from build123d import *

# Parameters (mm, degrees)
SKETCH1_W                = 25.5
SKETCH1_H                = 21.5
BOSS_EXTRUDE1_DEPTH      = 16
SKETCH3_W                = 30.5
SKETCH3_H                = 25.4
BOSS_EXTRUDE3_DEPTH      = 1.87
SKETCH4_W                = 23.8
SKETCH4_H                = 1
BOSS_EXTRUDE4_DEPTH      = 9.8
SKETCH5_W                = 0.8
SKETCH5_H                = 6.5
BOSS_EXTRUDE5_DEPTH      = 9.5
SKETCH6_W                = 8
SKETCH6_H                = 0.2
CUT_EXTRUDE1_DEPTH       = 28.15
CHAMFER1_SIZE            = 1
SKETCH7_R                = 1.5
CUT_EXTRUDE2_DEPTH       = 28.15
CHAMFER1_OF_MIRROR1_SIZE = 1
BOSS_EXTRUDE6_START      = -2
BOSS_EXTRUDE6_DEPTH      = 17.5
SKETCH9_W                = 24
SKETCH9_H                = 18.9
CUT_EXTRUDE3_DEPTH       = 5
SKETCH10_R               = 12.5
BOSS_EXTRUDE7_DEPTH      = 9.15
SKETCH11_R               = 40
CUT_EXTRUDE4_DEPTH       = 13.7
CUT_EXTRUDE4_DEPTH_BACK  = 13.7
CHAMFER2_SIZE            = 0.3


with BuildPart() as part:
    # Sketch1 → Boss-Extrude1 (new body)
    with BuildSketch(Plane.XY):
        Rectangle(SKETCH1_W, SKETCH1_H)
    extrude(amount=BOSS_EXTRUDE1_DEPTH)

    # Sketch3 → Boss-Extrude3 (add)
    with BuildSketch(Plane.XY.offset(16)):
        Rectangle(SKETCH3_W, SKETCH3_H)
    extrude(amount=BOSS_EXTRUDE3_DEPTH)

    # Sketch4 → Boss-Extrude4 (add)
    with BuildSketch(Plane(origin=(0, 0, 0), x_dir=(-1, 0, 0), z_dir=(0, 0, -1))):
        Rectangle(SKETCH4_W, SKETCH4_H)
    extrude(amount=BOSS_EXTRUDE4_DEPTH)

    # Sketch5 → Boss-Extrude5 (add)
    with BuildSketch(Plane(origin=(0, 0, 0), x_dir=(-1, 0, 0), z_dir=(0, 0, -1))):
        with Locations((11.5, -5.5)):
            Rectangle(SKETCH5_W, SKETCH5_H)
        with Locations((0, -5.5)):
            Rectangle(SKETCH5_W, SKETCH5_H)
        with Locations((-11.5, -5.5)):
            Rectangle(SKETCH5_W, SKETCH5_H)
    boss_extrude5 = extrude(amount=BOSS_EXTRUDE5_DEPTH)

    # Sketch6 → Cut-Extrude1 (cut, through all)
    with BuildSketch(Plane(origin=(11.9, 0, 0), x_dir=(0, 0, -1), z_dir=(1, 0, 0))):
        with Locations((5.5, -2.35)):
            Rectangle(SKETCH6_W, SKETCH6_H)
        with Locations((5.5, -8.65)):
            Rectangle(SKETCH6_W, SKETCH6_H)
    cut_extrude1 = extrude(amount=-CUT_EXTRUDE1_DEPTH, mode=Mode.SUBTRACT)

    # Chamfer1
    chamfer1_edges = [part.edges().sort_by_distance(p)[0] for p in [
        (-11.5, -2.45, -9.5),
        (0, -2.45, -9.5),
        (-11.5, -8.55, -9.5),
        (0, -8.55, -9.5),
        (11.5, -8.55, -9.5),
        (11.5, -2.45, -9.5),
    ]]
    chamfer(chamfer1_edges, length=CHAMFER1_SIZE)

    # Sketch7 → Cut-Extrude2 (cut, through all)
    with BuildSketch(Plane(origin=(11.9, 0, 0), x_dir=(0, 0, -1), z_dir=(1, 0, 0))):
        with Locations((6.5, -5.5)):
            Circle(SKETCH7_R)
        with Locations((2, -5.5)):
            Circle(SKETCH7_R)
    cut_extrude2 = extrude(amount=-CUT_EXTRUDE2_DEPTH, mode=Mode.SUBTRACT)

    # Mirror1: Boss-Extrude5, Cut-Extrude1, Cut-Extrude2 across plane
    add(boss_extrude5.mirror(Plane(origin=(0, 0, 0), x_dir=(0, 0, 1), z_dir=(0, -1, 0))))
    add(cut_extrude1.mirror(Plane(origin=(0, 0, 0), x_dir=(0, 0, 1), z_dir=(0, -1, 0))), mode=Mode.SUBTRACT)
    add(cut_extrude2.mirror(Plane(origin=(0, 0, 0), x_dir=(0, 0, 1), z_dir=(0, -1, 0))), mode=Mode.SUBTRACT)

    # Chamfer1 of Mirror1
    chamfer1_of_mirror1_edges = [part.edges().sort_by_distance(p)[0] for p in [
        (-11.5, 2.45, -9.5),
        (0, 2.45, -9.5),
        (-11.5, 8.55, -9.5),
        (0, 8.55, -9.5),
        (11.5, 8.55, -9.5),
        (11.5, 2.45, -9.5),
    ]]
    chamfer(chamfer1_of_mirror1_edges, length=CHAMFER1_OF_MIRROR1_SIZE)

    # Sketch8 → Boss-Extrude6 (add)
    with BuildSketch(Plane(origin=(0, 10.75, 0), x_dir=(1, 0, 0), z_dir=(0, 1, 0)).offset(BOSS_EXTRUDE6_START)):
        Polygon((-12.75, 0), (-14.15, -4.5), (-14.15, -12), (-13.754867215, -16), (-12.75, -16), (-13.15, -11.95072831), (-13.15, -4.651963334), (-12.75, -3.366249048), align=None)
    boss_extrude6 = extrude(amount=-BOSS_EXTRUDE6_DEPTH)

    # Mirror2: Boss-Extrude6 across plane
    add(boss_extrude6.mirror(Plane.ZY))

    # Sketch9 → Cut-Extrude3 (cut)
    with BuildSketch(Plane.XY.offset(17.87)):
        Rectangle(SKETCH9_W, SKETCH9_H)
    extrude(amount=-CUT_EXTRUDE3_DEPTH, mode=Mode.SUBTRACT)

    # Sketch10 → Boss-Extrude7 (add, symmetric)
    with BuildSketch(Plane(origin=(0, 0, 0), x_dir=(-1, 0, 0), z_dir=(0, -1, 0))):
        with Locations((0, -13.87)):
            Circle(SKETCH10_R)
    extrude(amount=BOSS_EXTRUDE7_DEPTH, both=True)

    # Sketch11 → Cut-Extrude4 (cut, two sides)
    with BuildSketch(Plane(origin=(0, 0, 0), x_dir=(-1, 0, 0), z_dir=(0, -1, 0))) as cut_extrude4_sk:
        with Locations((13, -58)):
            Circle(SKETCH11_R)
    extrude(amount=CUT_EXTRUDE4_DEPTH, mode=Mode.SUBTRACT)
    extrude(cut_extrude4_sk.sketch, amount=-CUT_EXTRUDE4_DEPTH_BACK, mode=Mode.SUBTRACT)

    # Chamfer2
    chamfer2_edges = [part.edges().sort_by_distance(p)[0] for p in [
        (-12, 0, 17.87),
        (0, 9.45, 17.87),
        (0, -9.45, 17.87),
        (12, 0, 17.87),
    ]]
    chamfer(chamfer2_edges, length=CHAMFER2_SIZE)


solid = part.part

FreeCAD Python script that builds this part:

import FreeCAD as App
import Part
import Sketcher
Q = App.Units.Quantity


def edges_at(feature, points):
    """Names of the edges that pass closest to the given points."""
    edges = feature.Shape.Edges
    near = lambda p: min(range(len(edges)), key=lambda i: edges[i].distToShape(Part.Vertex(*p))[0])
    return sorted({f"Edge{near(p) + 1}" for p in points})

doc = App.newDocument("Part")
body = doc.addObject("PartDesign::Body", "Body")

sketch1 = doc.addObject("Sketcher::SketchObject", "Sketch")
body.addObject(sketch1)
sketch1.AttachmentSupport = (doc.XY_Plane, [""])
sketch1.MapMode = "FlatFace"
sketch1.addGeometry(Part.LineSegment(App.Vector(-13, 11, 0), App.Vector(-13, -11, 0)), False)
sketch1.addGeometry(Part.LineSegment(App.Vector(-13, -11, 0), App.Vector(13, -11, 0)), False)
sketch1.addGeometry(Part.LineSegment(App.Vector(13, -11, 0), App.Vector(13, 11, 0)), False)
sketch1.addGeometry(Part.LineSegment(App.Vector(13, 11, 0), App.Vector(-13, 11, 0)), False)
sketch1.addConstraint(Sketcher.Constraint("Coincident", 0, 2, 1, 1))
sketch1.addConstraint(Sketcher.Constraint("Coincident", 1, 2, 2, 1))
sketch1.addConstraint(Sketcher.Constraint("Coincident", 2, 2, 3, 1))
sketch1.addConstraint(Sketcher.Constraint("Coincident", 3, 2, 0, 1))
sketch1.addConstraint(Sketcher.Constraint("Vertical", 0))
sketch1.addConstraint(Sketcher.Constraint("Horizontal", 1))
sketch1.addConstraint(Sketcher.Constraint("Vertical", 2))
sketch1.addConstraint(Sketcher.Constraint("Horizontal", 3))
sketch1.addConstraint(Sketcher.Constraint("Symmetric", 0, 2, 2, 2, -1, 1))
sketch1.addConstraint(Sketcher.Constraint("DistanceX", 1, 1, 1, 2, Q("25.5 mm")))
sketch1.addConstraint(Sketcher.Constraint("DistanceY", 0, 2, 0, 1, Q("21.5 mm")))
pad1 = doc.addObject("PartDesign::Pad", "Pad")
body.addObject(pad1)
pad1.Profile = sketch1
pad1.Length = 16

sketch2 = doc.addObject("Sketcher::SketchObject", "Sketch001")
body.addObject(sketch2)
sketch2.AttachmentSupport = (doc.XY_Plane, [""])
sketch2.MapMode = "FlatFace"
sketch2.AttachmentOffset = App.Placement(App.Vector(0, 0, 16), App.Rotation())
sketch2.addGeometry(Part.LineSegment(App.Vector(-15, 13, 0), App.Vector(-15, -13, 0)), False)
sketch2.addGeometry(Part.LineSegment(App.Vector(-15, -13, 0), App.Vector(15, -13, 0)), False)
sketch2.addGeometry(Part.LineSegment(App.Vector(15, -13, 0), App.Vector(15, 13, 0)), False)
sketch2.addGeometry(Part.LineSegment(App.Vector(15, 13, 0), App.Vector(-15, 13, 0)), False)
sketch2.addConstraint(Sketcher.Constraint("Coincident", 0, 2, 1, 1))
sketch2.addConstraint(Sketcher.Constraint("Coincident", 1, 2, 2, 1))
sketch2.addConstraint(Sketcher.Constraint("Coincident", 2, 2, 3, 1))
sketch2.addConstraint(Sketcher.Constraint("Coincident", 3, 2, 0, 1))
sketch2.addConstraint(Sketcher.Constraint("Vertical", 0))
sketch2.addConstraint(Sketcher.Constraint("Horizontal", 1))
sketch2.addConstraint(Sketcher.Constraint("Vertical", 2))
sketch2.addConstraint(Sketcher.Constraint("Horizontal", 3))
sketch2.addConstraint(Sketcher.Constraint("Symmetric", 0, 2, 2, 2, -1, 1))
sketch2.addConstraint(Sketcher.Constraint("DistanceX", 1, 1, 1, 2, Q("30.5 mm")))
sketch2.addConstraint(Sketcher.Constraint("DistanceY", 0, 2, 0, 1, Q("25.4 mm")))
pad2 = doc.addObject("PartDesign::Pad", "Pad001")
body.addObject(pad2)
pad2.Profile = sketch2
pad2.Length = 1.87

sketch3 = doc.addObject("Sketcher::SketchObject", "Sketch002")
body.addObject(sketch3)
sketch3.AttachmentSupport = (doc.XY_Plane, [""])
sketch3.MapMode = "FlatFace"
sketch3.addGeometry(Part.LineSegment(App.Vector(11.9, 0.5, 0), App.Vector(11.9, -0.5, 0)), False)
sketch3.addGeometry(Part.LineSegment(App.Vector(11.9, -0.5, 0), App.Vector(-11.9, -0.5, 0)), False)
sketch3.addGeometry(Part.LineSegment(App.Vector(-11.9, -0.5, 0), App.Vector(-11.9, 0.5, 0)), False)
sketch3.addGeometry(Part.LineSegment(App.Vector(-11.9, 0.5, 0), App.Vector(11.9, 0.5, 0)), False)
sketch3.addConstraint(Sketcher.Constraint("Coincident", 0, 2, 1, 1))
sketch3.addConstraint(Sketcher.Constraint("Coincident", 1, 2, 2, 1))
sketch3.addConstraint(Sketcher.Constraint("Coincident", 2, 2, 3, 1))
sketch3.addConstraint(Sketcher.Constraint("Coincident", 3, 2, 0, 1))
sketch3.addConstraint(Sketcher.Constraint("Vertical", 0))
sketch3.addConstraint(Sketcher.Constraint("Horizontal", 1))
sketch3.addConstraint(Sketcher.Constraint("Vertical", 2))
sketch3.addConstraint(Sketcher.Constraint("Horizontal", 3))
sketch3.addConstraint(Sketcher.Constraint("Symmetric", 0, 2, 2, 2, -1, 1))
sketch3.addConstraint(Sketcher.Constraint("DistanceY", 0, 2, 0, 1, Q("1 mm")))
sketch3.addConstraint(Sketcher.Constraint("DistanceX", 1, 2, 1, 1, Q("23.8 mm")))
pad3 = doc.addObject("PartDesign::Pad", "Pad002")
body.addObject(pad3)
pad3.Profile = sketch3
pad3.Length = 9.8
pad3.Reversed = True

sketch4 = doc.addObject("Sketcher::SketchObject", "Sketch003")
body.addObject(sketch4)
sketch4.AttachmentSupport = (doc.XY_Plane, [""])
sketch4.MapMode = "FlatFace"
sketch4.addGeometry(Part.LineSegment(App.Vector(-11.1, -2.2, 0), App.Vector(-11.1, -8.8, 0)), False)
sketch4.addGeometry(Part.LineSegment(App.Vector(-11.1, -8.8, 0), App.Vector(-11.9, -8.8, 0)), False)
sketch4.addGeometry(Part.LineSegment(App.Vector(-11.9, -8.8, 0), App.Vector(-11.9, -2.2, 0)), False)
sketch4.addGeometry(Part.LineSegment(App.Vector(-11.9, -2.2, 0), App.Vector(-11.1, -2.2, 0)), False)
sketch4.addGeometry(Part.LineSegment(App.Vector(0.4, -2.2, 0), App.Vector(0.4, -8.8, 0)), False)
sketch4.addGeometry(Part.LineSegment(App.Vector(0.4, -8.8, 0), App.Vector(-0.4, -8.8, 0)), False)
sketch4.addGeometry(Part.LineSegment(App.Vector(-0.4, -8.8, 0), App.Vector(-0.4, -2.2, 0)), False)
sketch4.addGeometry(Part.LineSegment(App.Vector(-0.4, -2.2, 0), App.Vector(0.4, -2.2, 0)), False)
sketch4.addGeometry(Part.LineSegment(App.Vector(11.9, -2.2, 0), App.Vector(11.9, -8.8, 0)), False)
sketch4.addGeometry(Part.LineSegment(App.Vector(11.9, -8.8, 0), App.Vector(11.1, -8.8, 0)), False)
sketch4.addGeometry(Part.LineSegment(App.Vector(11.1, -8.8, 0), App.Vector(11.1, -2.2, 0)), False)
sketch4.addGeometry(Part.LineSegment(App.Vector(11.1, -2.2, 0), App.Vector(11.9, -2.2, 0)), False)
sketch4.addConstraint(Sketcher.Constraint("Coincident", 0, 2, 1, 1))
sketch4.addConstraint(Sketcher.Constraint("Coincident", 1, 2, 2, 1))
sketch4.addConstraint(Sketcher.Constraint("Coincident", 2, 2, 3, 1))
sketch4.addConstraint(Sketcher.Constraint("Coincident", 3, 2, 0, 1))
sketch4.addConstraint(Sketcher.Constraint("Coincident", 4, 2, 5, 1))
sketch4.addConstraint(Sketcher.Constraint("Coincident", 5, 2, 6, 1))
sketch4.addConstraint(Sketcher.Constraint("Coincident", 6, 2, 7, 1))
sketch4.addConstraint(Sketcher.Constraint("Coincident", 7, 2, 4, 1))
sketch4.addConstraint(Sketcher.Constraint("Coincident", 8, 2, 9, 1))
sketch4.addConstraint(Sketcher.Constraint("Coincident", 9, 2, 10, 1))
sketch4.addConstraint(Sketcher.Constraint("Coincident", 10, 2, 11, 1))
sketch4.addConstraint(Sketcher.Constraint("Coincident", 11, 2, 8, 1))
sketch4.addConstraint(Sketcher.Constraint("Vertical", 0))
sketch4.addConstraint(Sketcher.Constraint("Horizontal", 1))
sketch4.addConstraint(Sketcher.Constraint("Vertical", 2))
sketch4.addConstraint(Sketcher.Constraint("Horizontal", 3))
sketch4.addConstraint(Sketcher.Constraint("Vertical", 4))
sketch4.addConstraint(Sketcher.Constraint("Horizontal", 5))
sketch4.addConstraint(Sketcher.Constraint("Vertical", 6))
sketch4.addConstraint(Sketcher.Constraint("Horizontal", 7))
sketch4.addConstraint(Sketcher.Constraint("Vertical", 8))
sketch4.addConstraint(Sketcher.Constraint("Horizontal", 9))
sketch4.addConstraint(Sketcher.Constraint("Vertical", 10))
sketch4.addConstraint(Sketcher.Constraint("Horizontal", 11))
sketch4.addConstraint(Sketcher.Constraint("Symmetric", 1, 2, 8, 2, -2))
sketch4.addConstraint(Sketcher.Constraint("Symmetric", 3, 2, 10, 2, -2))
sketch4.addConstraint(Sketcher.Constraint("Horizontal", 1, 2, 4, 2))
sketch4.addConstraint(Sketcher.Constraint("Horizontal", 3, 2, 6, 2))
sketch4.addConstraint(Sketcher.Constraint("Equal", 3, 5))
sketch4.addConstraint(Sketcher.Constraint("DistanceX", 1, 2, 1, 1, Q("0.8 mm")))
sketch4.addConstraint(Sketcher.Constraint("DistanceY", 0, 2, 0, 1, Q("6.5 mm")))
sketch4.addConstraint(Sketcher.Constraint("DistanceX", 0, 2, 8, 2, Q("23 mm")))
sketch4.addConstraint(Sketcher.Constraint("DistanceX", -1, 1, 4, 2, Q("0.4 mm")))
sketch4.addConstraint(Sketcher.Constraint("DistanceY", 0, 2, -1, 1, Q("8.75 mm")))
pad4 = doc.addObject("PartDesign::Pad", "Pad003")
body.addObject(pad4)
pad4.Profile = sketch4
pad4.Length = 9.5
pad4.Reversed = True

sketch5 = doc.addObject("Sketcher::SketchObject", "Sketch004")
body.addObject(sketch5)
sketch5.AttachmentSupport = (doc.YZ_Plane, [""])
sketch5.MapMode = "FlatFace"
sketch5.AttachmentOffset = App.Placement(App.Vector(0, 0, 11.9), App.Rotation())
sketch5.addGeometry(Part.LineSegment(App.Vector(-2.25, -1.5, 0), App.Vector(-2.45, -1.5, 0)), False)
sketch5.addGeometry(Part.LineSegment(App.Vector(-2.45, -1.5, 0), App.Vector(-2.45, -9.5, 0)), False)
sketch5.addGeometry(Part.LineSegment(App.Vector(-2.45, -9.5, 0), App.Vector(-2.25, -9.5, 0)), False)
sketch5.addGeometry(Part.LineSegment(App.Vector(-2.25, -9.5, 0), App.Vector(-2.25, -1.5, 0)), False)
sketch5.addGeometry(Part.LineSegment(App.Vector(-8.55, -1.5, 0), App.Vector(-8.75, -1.5, 0)), False)
sketch5.addGeometry(Part.LineSegment(App.Vector(-8.75, -1.5, 0), App.Vector(-8.75, -9.5, 0)), False)
sketch5.addGeometry(Part.LineSegment(App.Vector(-8.75, -9.5, 0), App.Vector(-8.55, -9.5, 0)), False)
sketch5.addGeometry(Part.LineSegment(App.Vector(-8.55, -9.5, 0), App.Vector(-8.55, -1.5, 0)), False)
sketch5.addConstraint(Sketcher.Constraint("Coincident", 0, 2, 1, 1))
sketch5.addConstraint(Sketcher.Constraint("Coincident", 1, 2, 2, 1))
sketch5.addConstraint(Sketcher.Constraint("Coincident", 2, 2, 3, 1))
sketch5.addConstraint(Sketcher.Constraint("Coincident", 3, 2, 0, 1))
sketch5.addConstraint(Sketcher.Constraint("Coincident", 4, 2, 5, 1))
sketch5.addConstraint(Sketcher.Constraint("Coincident", 5, 2, 6, 1))
sketch5.addConstraint(Sketcher.Constraint("Coincident", 6, 2, 7, 1))
sketch5.addConstraint(Sketcher.Constraint("Coincident", 7, 2, 4, 1))
sketch5.addConstraint(Sketcher.Constraint("Horizontal", 0))
sketch5.addConstraint(Sketcher.Constraint("Vertical", 1))
sketch5.addConstraint(Sketcher.Constraint("Horizontal", 2))
sketch5.addConstraint(Sketcher.Constraint("Vertical", 3))
sketch5.addConstraint(Sketcher.Constraint("Horizontal", 4))
sketch5.addConstraint(Sketcher.Constraint("Vertical", 5))
sketch5.addConstraint(Sketcher.Constraint("Horizontal", 6))
sketch5.addConstraint(Sketcher.Constraint("Vertical", 7))
sketch5.addConstraint(Sketcher.Constraint("Horizontal", 3, 2, 4, 2))
sketch5.addConstraint(Sketcher.Constraint("Horizontal", 2, 2, 5, 2))
sketch5.addConstraint(Sketcher.Constraint("Equal", 2, 4))
sketch5.addConstraint(Sketcher.Constraint("DistanceY", 1, 2, 1, 1, Q("8 mm")))
sketch5.addConstraint(Sketcher.Constraint("DistanceX", 0, 2, 0, 1, Q("0.2 mm")))
sketch5.addConstraint(Sketcher.Constraint("DistanceY", 0, 2, -1, 1, Q("1.5 mm")))
sketch5.addConstraint(Sketcher.Constraint("DistanceX", 4, 2, 0, 2, Q("6.3 mm")))
sketch5.addConstraint(Sketcher.Constraint("DistanceX", 0, 2, -1, 1, Q("2.45 mm")))
pocket1 = doc.addObject("PartDesign::Pocket", "Pocket")
body.addObject(pocket1)
pocket1.Profile = sketch5
pocket1.Type = "ThroughAll"
doc.recompute()

chamfer = doc.addObject("PartDesign::Chamfer", "Chamfer")
body.addObject(chamfer)
chamfer.Base = (pocket1, edges_at(pocket1, [
    (-11.5, -2.45, -9.5),
    (0, -2.45, -9.5),
    (-11.5, -8.55, -9.5),
    (0, -8.55, -9.5),
    (11.5, -8.55, -9.5),
    (11.5, -2.45, -9.5),
]))
chamfer.Size = 1

sketch6 = doc.addObject("Sketcher::SketchObject", "Sketch005")
body.addObject(sketch6)
sketch6.AttachmentSupport = (doc.YZ_Plane, [""])
sketch6.MapMode = "FlatFace"
sketch6.AttachmentOffset = App.Placement(App.Vector(0, 0, 11.9), App.Rotation())
sketch6.addGeometry(Part.Circle(App.Vector(-5.5, -6.5, 0), App.Vector(0, 0, 1), 1.5), False)
sketch6.addGeometry(Part.Circle(App.Vector(-5.5, -2, 0), App.Vector(0, 0, 1), 1.5), False)
sketch6.addConstraint(Sketcher.Constraint("Equal", 0, 1))
sketch6.addConstraint(Sketcher.Constraint("Vertical", 0, 3, 1, 3))
sketch6.addConstraint(Sketcher.Constraint("Diameter", 0, Q("3 mm")))
sketch6.addConstraint(Sketcher.Constraint("DistanceY", 1, 3, -1, 1, Q("2 mm")))
sketch6.addConstraint(Sketcher.Constraint("DistanceX", 0, 3, -1, 1, Q("5.5 mm")))
sketch6.addConstraint(Sketcher.Constraint("DistanceY", 0, 3, -1, 1, Q("6.5 mm")))
pocket2 = doc.addObject("PartDesign::Pocket", "Pocket001")
body.addObject(pocket2)
pocket2.Profile = sketch6
pocket2.Type = "ThroughAll"
doc.recompute()

mirrored = doc.addObject("PartDesign::Mirrored", "Mirrored")
body.addObject(mirrored)
mirrored.Originals = [pad4, pocket1, pocket2]
mirrored.MirrorPlane = (doc.XZ_Plane, [""])
body.Tip = mirrored
doc.recompute()

chamfer2 = doc.addObject("PartDesign::Chamfer", "Chamfer001")
body.addObject(chamfer2)
chamfer2.Base = (mirrored, edges_at(mirrored, [
    (-11.5, 2.45, -9.5),
    (0, 2.45, -9.5),
    (-11.5, 8.55, -9.5),
    (0, 8.55, -9.5),
    (11.5, 8.55, -9.5),
    (11.5, 2.45, -9.5),
]))
chamfer2.Size = 1

sketch7 = doc.addObject("Sketcher::SketchObject", "Sketch006")
body.addObject(sketch7)
sketch7.AttachmentSupport = (doc.XZ_Plane, [""])
sketch7.MapMode = "FlatFace"
sketch7.AttachmentOffset = App.Placement(App.Vector(0, 0, -8.75), App.Rotation())
sketch7.addGeometry(Part.LineSegment(App.Vector(-12.8, 0, 0), App.Vector(-14.2, 4.5, 0)), False)
sketch7.addGeometry(Part.LineSegment(App.Vector(-14.2, 4.5, 0), App.Vector(-14.2, 12, 0)), False)
sketch7.addGeometry(Part.LineSegment(App.Vector(-14.2, 12, 0), App.Vector(-13.8, 16, 0)), False)
sketch7.addGeometry(Part.LineSegment(App.Vector(-13.8, 16, 0), App.Vector(-12.8, 16, 0)), False)
sketch7.addGeometry(Part.LineSegment(App.Vector(-12.8, 16, 0), App.Vector(-13.2, 12, 0)), False)
sketch7.addGeometry(Part.LineSegment(App.Vector(-13.2, 12, 0), App.Vector(-13.2, 4.7, 0)), False)
sketch7.addGeometry(Part.LineSegment(App.Vector(-13.2, 4.7, 0), App.Vector(-12.8, 3.4, 0)), False)
sketch7.addGeometry(Part.LineSegment(App.Vector(-12.8, 3.4, 0), App.Vector(-12.8, 0, 0)), False)
sketch7.addConstraint(Sketcher.Constraint("Coincident", 0, 2, 1, 1))
sketch7.addConstraint(Sketcher.Constraint("Coincident", 1, 2, 2, 1))
sketch7.addConstraint(Sketcher.Constraint("Coincident", 2, 2, 3, 1))
sketch7.addConstraint(Sketcher.Constraint("Coincident", 3, 2, 4, 1))
sketch7.addConstraint(Sketcher.Constraint("Coincident", 4, 2, 5, 1))
sketch7.addConstraint(Sketcher.Constraint("Coincident", 5, 2, 6, 1))
sketch7.addConstraint(Sketcher.Constraint("Coincident", 6, 2, 7, 1))
sketch7.addConstraint(Sketcher.Constraint("Coincident", 7, 2, 0, 1))
sketch7.addConstraint(Sketcher.Constraint("Vertical", 1))
sketch7.addConstraint(Sketcher.Constraint("Horizontal", 3))
sketch7.addConstraint(Sketcher.Constraint("Vertical", 5))
sketch7.addConstraint(Sketcher.Constraint("Vertical", 7))
sketch7.addConstraint(Sketcher.Constraint("PointOnObject", 7, 2, -1))
sketch7.addConstraint(Sketcher.Constraint("Parallel", 2, 4))
sketch7.addConstraint(Sketcher.Constraint("Parallel", 0, 6))
sketch7.addConstraint(Sketcher.Constraint("Vertical", 3, 2, 6, 2))
sketch7.addConstraint(Sketcher.Constraint("DistanceY", 1, 1, 1, 2, Q("7.5 mm")))
sketch7.addConstraint(Sketcher.Constraint("DistanceY", -1, 1, 1, 2, Q("12 mm")))
sketch7.addConstraint(Sketcher.Constraint("DistanceY", -1, 1, 2, 2, Q("16 mm")))
sketch7.addConstraint(Sketcher.Constraint("DistanceX", 1, 2, 4, 2, Q("1 mm")))
sketch7.addConstraint(Sketcher.Constraint("DistanceX", 1, 2, 3, 2, Q("1.4 mm")))
sketch7.addConstraint(Sketcher.Constraint("DistanceX", 0, 2, -1, 1, Q("14.15 mm")))
sketch7.addConstraint(Sketcher.Constraint("DistanceY", 7, 2, 7, 1, Q("3.366249 mm")))
sketch7.addConstraint(Sketcher.Constraint("Distance", 2, Q("4.019469 mm")))
pad5 = doc.addObject("PartDesign::Pad", "Pad004")
body.addObject(pad5)
pad5.Profile = sketch7
pad5.Length = 17.5
doc.recompute()

mirrored2 = doc.addObject("PartDesign::Mirrored", "Mirrored001")
body.addObject(mirrored2)
mirrored2.Originals = [pad5]
mirrored2.MirrorPlane = (doc.YZ_Plane, [""])
body.Tip = mirrored2

sketch8 = doc.addObject("Sketcher::SketchObject", "Sketch007")
body.addObject(sketch8)
sketch8.AttachmentSupport = (doc.XY_Plane, [""])
sketch8.MapMode = "FlatFace"
sketch8.AttachmentOffset = App.Placement(App.Vector(0, 0, 17.87), App.Rotation())
sketch8.addGeometry(Part.LineSegment(App.Vector(-12, 9, 0), App.Vector(-12, -9, 0)), False)
sketch8.addGeometry(Part.LineSegment(App.Vector(-12, -9, 0), App.Vector(12, -9, 0)), False)
sketch8.addGeometry(Part.LineSegment(App.Vector(12, -9, 0), App.Vector(12, 9, 0)), False)
sketch8.addGeometry(Part.LineSegment(App.Vector(12, 9, 0), App.Vector(-12, 9, 0)), False)
sketch8.addConstraint(Sketcher.Constraint("Coincident", 0, 2, 1, 1))
sketch8.addConstraint(Sketcher.Constraint("Coincident", 1, 2, 2, 1))
sketch8.addConstraint(Sketcher.Constraint("Coincident", 2, 2, 3, 1))
sketch8.addConstraint(Sketcher.Constraint("Coincident", 3, 2, 0, 1))
sketch8.addConstraint(Sketcher.Constraint("Vertical", 0))
sketch8.addConstraint(Sketcher.Constraint("Horizontal", 1))
sketch8.addConstraint(Sketcher.Constraint("Vertical", 2))
sketch8.addConstraint(Sketcher.Constraint("Horizontal", 3))
sketch8.addConstraint(Sketcher.Constraint("Symmetric", 0, 2, 2, 2, -1, 1))
sketch8.addConstraint(Sketcher.Constraint("DistanceX", 1, 1, 1, 2, Q("24 mm")))
sketch8.addConstraint(Sketcher.Constraint("DistanceY", 0, 2, 0, 1, Q("18.9 mm")))
pocket3 = doc.addObject("PartDesign::Pocket", "Pocket002")
body.addObject(pocket3)
pocket3.Profile = sketch8
pocket3.Length = 5

sketch9 = doc.addObject("Sketcher::SketchObject", "Sketch008")
body.addObject(sketch9)
sketch9.AttachmentSupport = (doc.XZ_Plane, [""])
sketch9.MapMode = "FlatFace"
sketch9.addGeometry(Part.Circle(App.Vector(0, 14, 0), App.Vector(0, 0, 1), 12), False)
sketch9.addConstraint(Sketcher.Constraint("PointOnObject", 0, 3, -2))
sketch9.addConstraint(Sketcher.Constraint("Diameter", 0, Q("25 mm")))
sketch9.addConstraint(Sketcher.Constraint("DistanceY", -1, 1, 0, 3, Q("13.87 mm")))
pad6 = doc.addObject("PartDesign::Pad", "Pad005")
body.addObject(pad6)
pad6.Profile = sketch9
pad6.Length = 18.3
pad6.Midplane = True

sketch10 = doc.addObject("Sketcher::SketchObject", "Sketch009")
body.addObject(sketch10)
sketch10.AttachmentSupport = (doc.XZ_Plane, [""])
sketch10.MapMode = "FlatFace"
sketch10.addGeometry(Part.Circle(App.Vector(-13, 58, 0), App.Vector(0, 0, 1), 40), False)
sketch10.addConstraint(Sketcher.Constraint("Diameter", 0, Q("80 mm")))
sketch10.addConstraint(Sketcher.Constraint("DistanceX", 0, 3, -1, 1, Q("13 mm")))
sketch10.addConstraint(Sketcher.Constraint("DistanceY", -1, 1, 0, 3, Q("58 mm")))
pocket4 = doc.addObject("PartDesign::Pocket", "Pocket003")
body.addObject(pocket4)
pocket4.Profile = sketch10
pocket4.Type = "ThroughAll"
pocket4.Midplane = True
doc.recompute()

chamfer3 = doc.addObject("PartDesign::Chamfer", "Chamfer002")
body.addObject(chamfer3)
chamfer3.Base = (pocket4, edges_at(pocket4, [
    (-12, 0, 17.87),
    (0, 9.45, 17.87),
    (0, -9.45, 17.87),
    (12, 0, 17.87),
]))
chamfer3.Size = 0.3

doc.recompute()
